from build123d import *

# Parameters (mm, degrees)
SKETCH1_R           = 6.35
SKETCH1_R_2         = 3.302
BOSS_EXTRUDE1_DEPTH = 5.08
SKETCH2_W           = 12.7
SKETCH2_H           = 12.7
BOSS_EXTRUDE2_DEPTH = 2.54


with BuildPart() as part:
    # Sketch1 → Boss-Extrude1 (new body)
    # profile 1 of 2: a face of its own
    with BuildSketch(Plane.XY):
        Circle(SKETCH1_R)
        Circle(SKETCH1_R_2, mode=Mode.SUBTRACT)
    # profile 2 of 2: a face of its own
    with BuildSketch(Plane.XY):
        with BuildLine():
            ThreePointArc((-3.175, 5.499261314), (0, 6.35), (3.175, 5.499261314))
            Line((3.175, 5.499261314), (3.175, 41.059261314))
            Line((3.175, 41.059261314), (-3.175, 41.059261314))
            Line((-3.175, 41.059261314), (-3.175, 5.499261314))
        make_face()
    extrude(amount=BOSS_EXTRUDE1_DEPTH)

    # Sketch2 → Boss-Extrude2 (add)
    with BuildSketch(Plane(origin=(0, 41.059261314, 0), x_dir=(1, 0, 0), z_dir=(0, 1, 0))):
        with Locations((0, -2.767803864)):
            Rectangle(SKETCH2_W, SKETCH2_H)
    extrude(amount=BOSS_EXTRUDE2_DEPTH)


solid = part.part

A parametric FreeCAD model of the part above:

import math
import FreeCAD as App
import Part
import Sketcher

V = App.Vector
Q = App.Units.Quantity


def add_polygon(sketch, points):
    """Adds a closed chain of lines whose ends are joined by coincident constraints."""
    first, n = sketch.GeometryCount, len(points)
    for a, b in zip(points, points[1:] + points[:1]):
        sketch.addGeometry(Part.LineSegment(App.Vector(*a, 0), App.Vector(*b, 0)), False)
    for i in range(n):
        sketch.addConstraint(Sketcher.Constraint("Coincident", first + i, 2, first + (i + 1) % n, 1))

doc = App.newDocument("Part")
params = doc.addObject("Spreadsheet::Sheet", "Params")
for row, (alias, value) in enumerate([
    ("sketch1_diameter", "0.26 in"),
    ("sketch1_radius", "0.25 in"),
    ("sketch1_height", "1.4 in"),
    ("sketch1_width", "0.25 in"),
    ("pad1_length", "0.2 in"),
    ("sketch2_width", "0.5 in"),
    ("pad2_length", "0.1 in"),
], start=1):
    params.set(f"A{row}", alias)
    params.set(f"B{row}", "=" + value)
    params.setAlias(f"B{row}", alias)

body = doc.addObject("PartDesign::Body", "Body")

# Sketch on XY plane
sketch1 = body.newObject("Sketcher::SketchObject", "Sketch")
sketch1.AttachmentSupport = (doc.getObject("XY_Plane"), [""])
sketch1.MapMode = "FlatFace"
sketch1.addGeometry(Part.LineSegment(V(3.2, 5.5, 0), V(3.2, 41.1, 0)), False)
sketch1.addGeometry(Part.LineSegment(V(3.2, 41.1, 0), V(-3.2, 41.1, 0)), False)
sketch1.addGeometry(Part.LineSegment(V(-3.2, 41.1, 0), V(-3.2, 5.5, 0)), False)
sketch1.addGeometry(Part.ArcOfCircle(Part.Circle(V(0, 0, 0), V(0, 0, 1), 6.3), math.radians(120), math.radians(420)), False)
sketch1.addGeometry(Part.Circle(V(0, 0, 0), V(0, 0, 1), 3.3), False)
sketch1.addConstraint(Sketcher.Constraint("Coincident", 0, 2, 1, 1))
sketch1.addConstraint(Sketcher.Constraint("Coincident", 1, 2, 2, 1))
sketch1.addConstraint(Sketcher.Constraint("Coincident", 2, 2, 3, 1))
sketch1.addConstraint(Sketcher.Constraint("Coincident", 3, 2, 0, 1))
sketch1.addConstraint(Sketcher.Constraint("Vertical", 0))
sketch1.addConstraint(Sketcher.Constraint("Horizontal", 1))
sketch1.addConstraint(Sketcher.Constraint("Vertical", 2))
sketch1.addConstraint(Sketcher.Constraint("Coincident", 3, 3, -1, 1))
sketch1.addConstraint(Sketcher.Constraint("Coincident", 4, 3, -1, 1))
sketch1.addConstraint(Sketcher.Constraint("Horizontal", 2, 2, 3, 2))
sketch1.addConstraint(Sketcher.Constraint("Diameter", 4, Q("0.26 in")))
sketch1.addConstraint(Sketcher.Constraint("Radius", 3, Q("0.25 in")))
sketch1.addConstraint(Sketcher.Constraint("DistanceY", 0, 1, 0, 2, Q("1.4 in")))
sketch1.addConstraint(Sketcher.Constraint("DistanceX", 1, 2, 1, 1, Q("0.25 in")))
sketch1.setExpression("Constraints[10]", "Params.sketch1_diameter")
sketch1.setExpression("Constraints[11]", "Params.sketch1_radius")
sketch1.setExpression("Constraints[12]", "Params.sketch1_height")
sketch1.setExpression("Constraints[13]", "Params.sketch1_width")
pad1 = body.newObject("PartDesign::Pad", "Pad")
pad1.Profile = sketch1
pad1.setExpression("Length", "Params.pad1_length")

# Sketch on XZ plane
sketch2 = body.newObject("Sketcher::SketchObject", "Sketch001")
sketch2.AttachmentSupport = (doc.getObject("XZ_Plane"), [""])
sketch2.MapMode = "FlatFace"
sketch2.AttachmentOffset = App.Placement(V(0, 0, -41.059261), App.Rotation())
add_polygon(sketch2, [(-6, -4), (-6, 9), (6, 9), (6, -4)])  # lines 0-3
sketch2.addConstraint(Sketcher.Constraint("Vertical", 0))
sketch2.addConstraint(Sketcher.Constraint("Horizontal", 1))
sketch2.addConstraint(Sketcher.Constraint("Vertical", 2))
sketch2.addConstraint(Sketcher.Constraint("Horizontal", 3))
sketch2.addConstraint(Sketcher.Constraint("Equal", 3, 0))
sketch2.addConstraint(Sketcher.Constraint("DistanceX", 1, 1, 1, 2, Q("0.5 in")))
sketch2.addConstraint(Sketcher.Constraint("DistanceX", 0, 2, -1, 1, Q("0.25 in")))
sketch2.addConstraint(Sketcher.Constraint("DistanceY", -1, 1, 0, 2, Q("9.117804 mm")))
sketch2.setExpression("Constraints[9]", "Params.sketch2_width")
pad2 = body.newObject("PartDesign::Pad", "Pad001")
pad2.Profile = sketch2
pad2.setExpression("Length", "Params.pad2_length")
pad2.Reversed = True

doc.recompute()
